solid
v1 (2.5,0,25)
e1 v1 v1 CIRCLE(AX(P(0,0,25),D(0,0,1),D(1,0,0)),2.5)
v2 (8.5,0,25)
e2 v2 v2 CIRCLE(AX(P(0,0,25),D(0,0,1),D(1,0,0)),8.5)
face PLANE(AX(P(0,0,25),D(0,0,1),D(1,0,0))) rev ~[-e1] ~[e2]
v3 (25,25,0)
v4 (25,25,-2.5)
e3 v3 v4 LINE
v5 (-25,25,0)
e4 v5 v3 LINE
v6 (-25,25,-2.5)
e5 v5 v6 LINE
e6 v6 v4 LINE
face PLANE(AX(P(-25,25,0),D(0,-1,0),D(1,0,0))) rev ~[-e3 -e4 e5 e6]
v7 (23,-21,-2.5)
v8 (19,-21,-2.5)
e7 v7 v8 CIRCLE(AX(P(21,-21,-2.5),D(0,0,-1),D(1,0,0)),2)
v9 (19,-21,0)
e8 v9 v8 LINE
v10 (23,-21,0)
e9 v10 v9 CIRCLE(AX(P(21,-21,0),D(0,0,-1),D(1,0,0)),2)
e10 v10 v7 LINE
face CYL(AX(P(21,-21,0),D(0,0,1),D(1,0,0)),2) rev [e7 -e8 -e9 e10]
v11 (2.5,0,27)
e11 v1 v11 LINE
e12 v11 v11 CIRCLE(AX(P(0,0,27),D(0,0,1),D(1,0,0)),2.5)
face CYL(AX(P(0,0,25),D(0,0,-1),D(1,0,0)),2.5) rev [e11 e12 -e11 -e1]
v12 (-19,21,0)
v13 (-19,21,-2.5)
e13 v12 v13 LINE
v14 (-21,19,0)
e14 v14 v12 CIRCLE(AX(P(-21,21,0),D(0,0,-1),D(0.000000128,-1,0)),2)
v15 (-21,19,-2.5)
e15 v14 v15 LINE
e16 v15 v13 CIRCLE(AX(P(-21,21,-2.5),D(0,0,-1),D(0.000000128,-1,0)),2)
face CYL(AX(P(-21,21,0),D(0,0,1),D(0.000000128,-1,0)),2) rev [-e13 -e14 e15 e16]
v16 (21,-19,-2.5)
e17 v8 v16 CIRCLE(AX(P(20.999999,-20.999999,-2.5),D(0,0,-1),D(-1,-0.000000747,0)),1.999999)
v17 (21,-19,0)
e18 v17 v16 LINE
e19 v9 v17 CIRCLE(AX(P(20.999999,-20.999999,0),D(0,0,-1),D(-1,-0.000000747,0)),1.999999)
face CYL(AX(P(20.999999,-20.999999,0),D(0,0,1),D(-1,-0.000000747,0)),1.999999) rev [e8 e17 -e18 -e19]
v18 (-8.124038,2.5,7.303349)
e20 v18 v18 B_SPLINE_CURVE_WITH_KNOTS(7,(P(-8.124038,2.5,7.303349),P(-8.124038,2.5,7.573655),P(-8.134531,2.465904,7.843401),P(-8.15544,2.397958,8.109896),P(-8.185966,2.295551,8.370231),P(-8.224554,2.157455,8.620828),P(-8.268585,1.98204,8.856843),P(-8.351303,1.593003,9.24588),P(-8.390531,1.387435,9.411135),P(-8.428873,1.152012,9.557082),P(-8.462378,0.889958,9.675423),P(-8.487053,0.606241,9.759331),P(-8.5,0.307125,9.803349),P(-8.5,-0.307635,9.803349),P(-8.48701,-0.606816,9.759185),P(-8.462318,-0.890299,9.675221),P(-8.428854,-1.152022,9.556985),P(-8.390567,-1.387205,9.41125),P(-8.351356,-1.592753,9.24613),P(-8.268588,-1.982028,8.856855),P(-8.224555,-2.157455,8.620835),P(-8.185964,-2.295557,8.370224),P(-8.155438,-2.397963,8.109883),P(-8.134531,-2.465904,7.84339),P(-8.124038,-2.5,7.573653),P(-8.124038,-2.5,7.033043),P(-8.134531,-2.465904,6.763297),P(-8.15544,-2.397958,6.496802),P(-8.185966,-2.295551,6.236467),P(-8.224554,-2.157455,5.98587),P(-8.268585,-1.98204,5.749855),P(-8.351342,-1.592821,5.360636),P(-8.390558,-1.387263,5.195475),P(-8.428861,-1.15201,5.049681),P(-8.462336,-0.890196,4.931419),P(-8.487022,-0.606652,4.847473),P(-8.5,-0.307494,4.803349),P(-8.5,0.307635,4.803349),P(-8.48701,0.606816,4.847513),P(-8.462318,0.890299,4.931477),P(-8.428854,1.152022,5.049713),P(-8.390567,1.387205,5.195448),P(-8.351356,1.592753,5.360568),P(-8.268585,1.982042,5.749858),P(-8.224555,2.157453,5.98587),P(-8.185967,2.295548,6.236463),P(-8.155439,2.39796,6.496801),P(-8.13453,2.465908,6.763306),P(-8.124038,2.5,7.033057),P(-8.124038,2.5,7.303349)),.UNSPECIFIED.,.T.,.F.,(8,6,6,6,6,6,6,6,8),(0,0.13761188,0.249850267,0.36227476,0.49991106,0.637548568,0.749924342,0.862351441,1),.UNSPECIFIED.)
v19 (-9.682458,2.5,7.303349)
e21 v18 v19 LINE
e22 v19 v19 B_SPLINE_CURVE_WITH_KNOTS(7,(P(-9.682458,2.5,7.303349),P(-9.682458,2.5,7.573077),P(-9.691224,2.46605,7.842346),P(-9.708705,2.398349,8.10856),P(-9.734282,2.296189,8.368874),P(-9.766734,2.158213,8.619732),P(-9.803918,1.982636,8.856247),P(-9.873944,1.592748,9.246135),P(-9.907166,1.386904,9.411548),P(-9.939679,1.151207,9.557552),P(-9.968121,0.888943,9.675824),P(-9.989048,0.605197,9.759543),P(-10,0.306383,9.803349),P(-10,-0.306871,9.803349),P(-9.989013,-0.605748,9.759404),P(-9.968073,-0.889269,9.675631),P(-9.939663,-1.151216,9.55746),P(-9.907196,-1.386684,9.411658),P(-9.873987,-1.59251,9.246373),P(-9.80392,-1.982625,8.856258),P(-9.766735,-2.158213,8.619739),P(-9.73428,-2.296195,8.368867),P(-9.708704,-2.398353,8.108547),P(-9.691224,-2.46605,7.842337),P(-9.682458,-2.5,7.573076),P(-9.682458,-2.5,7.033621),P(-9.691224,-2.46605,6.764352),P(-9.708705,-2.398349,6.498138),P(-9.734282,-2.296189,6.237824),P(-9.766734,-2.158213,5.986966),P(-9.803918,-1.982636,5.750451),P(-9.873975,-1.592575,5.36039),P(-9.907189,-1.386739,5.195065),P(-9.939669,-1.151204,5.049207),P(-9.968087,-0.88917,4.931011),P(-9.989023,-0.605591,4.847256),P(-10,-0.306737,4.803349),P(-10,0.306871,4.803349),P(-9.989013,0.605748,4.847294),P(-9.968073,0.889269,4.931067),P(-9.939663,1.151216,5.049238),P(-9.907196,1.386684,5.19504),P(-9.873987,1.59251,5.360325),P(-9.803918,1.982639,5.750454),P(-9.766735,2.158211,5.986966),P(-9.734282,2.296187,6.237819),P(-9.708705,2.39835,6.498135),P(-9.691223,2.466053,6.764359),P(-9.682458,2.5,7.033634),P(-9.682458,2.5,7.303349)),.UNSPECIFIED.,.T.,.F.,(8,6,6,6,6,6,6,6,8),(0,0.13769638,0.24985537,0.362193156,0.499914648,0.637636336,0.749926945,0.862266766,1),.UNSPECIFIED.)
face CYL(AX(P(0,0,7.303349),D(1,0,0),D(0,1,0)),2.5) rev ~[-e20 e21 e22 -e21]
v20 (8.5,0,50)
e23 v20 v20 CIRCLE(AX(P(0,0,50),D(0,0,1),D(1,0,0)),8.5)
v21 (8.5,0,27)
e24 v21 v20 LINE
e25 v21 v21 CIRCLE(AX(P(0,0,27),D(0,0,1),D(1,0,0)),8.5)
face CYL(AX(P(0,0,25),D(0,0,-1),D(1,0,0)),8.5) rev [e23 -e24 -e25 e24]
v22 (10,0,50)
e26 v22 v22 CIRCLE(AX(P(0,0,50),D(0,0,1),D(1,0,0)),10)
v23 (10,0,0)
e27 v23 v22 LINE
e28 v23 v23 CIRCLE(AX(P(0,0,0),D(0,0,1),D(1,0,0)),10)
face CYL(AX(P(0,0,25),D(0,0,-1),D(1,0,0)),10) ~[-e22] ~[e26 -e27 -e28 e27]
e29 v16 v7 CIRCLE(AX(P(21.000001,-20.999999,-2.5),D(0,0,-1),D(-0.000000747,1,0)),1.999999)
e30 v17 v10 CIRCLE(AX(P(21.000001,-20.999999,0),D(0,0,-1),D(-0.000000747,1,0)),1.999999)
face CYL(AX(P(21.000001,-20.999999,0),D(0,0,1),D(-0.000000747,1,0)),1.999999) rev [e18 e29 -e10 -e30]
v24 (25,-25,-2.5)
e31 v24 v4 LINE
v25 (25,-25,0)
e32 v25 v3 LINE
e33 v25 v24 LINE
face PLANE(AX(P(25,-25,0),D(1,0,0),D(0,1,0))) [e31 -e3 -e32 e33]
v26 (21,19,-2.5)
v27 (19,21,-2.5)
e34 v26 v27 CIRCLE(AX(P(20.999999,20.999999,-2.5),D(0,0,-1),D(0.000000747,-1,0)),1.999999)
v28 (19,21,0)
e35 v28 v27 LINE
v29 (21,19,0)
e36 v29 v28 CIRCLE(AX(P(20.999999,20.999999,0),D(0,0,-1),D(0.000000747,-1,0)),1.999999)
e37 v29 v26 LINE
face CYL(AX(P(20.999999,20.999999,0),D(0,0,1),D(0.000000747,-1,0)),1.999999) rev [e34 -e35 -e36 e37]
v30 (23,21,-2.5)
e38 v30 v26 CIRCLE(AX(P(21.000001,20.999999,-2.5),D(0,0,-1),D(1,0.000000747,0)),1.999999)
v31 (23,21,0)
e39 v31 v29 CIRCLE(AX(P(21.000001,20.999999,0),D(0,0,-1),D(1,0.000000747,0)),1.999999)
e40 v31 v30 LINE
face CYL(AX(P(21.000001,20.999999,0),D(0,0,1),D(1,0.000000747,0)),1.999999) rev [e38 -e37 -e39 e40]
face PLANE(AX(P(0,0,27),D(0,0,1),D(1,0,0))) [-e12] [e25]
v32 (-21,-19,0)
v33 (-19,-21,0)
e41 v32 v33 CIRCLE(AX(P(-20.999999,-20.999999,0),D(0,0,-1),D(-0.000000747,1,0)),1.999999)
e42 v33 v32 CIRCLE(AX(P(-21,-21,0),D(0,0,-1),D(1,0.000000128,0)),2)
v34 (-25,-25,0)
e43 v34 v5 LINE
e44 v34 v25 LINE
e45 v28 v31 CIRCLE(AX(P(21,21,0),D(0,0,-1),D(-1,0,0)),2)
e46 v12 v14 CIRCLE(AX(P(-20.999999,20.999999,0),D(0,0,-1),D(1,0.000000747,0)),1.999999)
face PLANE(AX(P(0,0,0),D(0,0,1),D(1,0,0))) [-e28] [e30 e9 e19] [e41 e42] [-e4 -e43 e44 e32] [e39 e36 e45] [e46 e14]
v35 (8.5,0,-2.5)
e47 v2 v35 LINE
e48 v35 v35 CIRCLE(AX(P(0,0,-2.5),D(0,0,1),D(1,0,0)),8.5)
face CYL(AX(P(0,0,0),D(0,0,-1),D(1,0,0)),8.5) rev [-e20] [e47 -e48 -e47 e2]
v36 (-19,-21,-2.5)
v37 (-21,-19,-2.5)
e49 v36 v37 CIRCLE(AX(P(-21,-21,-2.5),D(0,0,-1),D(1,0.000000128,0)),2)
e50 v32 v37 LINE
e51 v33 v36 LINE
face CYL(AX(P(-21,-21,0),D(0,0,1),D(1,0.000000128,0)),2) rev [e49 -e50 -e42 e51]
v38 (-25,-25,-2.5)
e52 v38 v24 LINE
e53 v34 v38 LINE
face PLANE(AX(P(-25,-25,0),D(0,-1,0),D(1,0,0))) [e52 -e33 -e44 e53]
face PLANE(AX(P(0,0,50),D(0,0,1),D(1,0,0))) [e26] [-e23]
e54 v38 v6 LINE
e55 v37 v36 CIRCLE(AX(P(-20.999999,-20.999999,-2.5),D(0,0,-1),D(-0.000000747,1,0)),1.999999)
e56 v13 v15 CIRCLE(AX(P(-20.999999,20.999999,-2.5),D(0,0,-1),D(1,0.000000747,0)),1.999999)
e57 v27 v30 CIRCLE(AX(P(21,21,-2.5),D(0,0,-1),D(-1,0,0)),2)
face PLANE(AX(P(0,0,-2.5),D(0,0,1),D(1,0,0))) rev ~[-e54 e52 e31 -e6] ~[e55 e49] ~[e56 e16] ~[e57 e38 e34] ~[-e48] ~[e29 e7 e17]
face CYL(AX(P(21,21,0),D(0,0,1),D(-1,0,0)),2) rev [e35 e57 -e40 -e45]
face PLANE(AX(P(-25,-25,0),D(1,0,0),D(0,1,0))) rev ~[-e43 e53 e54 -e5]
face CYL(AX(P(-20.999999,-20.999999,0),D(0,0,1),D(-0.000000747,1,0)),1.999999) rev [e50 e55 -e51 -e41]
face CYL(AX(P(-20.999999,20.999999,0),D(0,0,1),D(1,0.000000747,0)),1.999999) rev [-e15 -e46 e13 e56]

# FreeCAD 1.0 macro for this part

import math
import FreeCAD as App
import Part
import Sketcher

V = App.Vector
Q = App.Units.Quantity


def add_polygon(sketch, points):
    """Adds a closed chain of lines whose ends are joined by coincident constraints."""
    first, n = sketch.GeometryCount, len(points)
    for a, b in zip(points, points[1:] + points[:1]):
        sketch.addGeometry(Part.LineSegment(App.Vector(*a, 0), App.Vector(*b, 0)), False)
    for i in range(n):
        sketch.addConstraint(Sketcher.Constraint("Coincident", first + i, 2, first + (i + 1) % n, 1))

doc = App.newDocument("Part")
body = doc.addObject("PartDesign::Body", "Body")
body.AllowCompound = True

sketch1 = body.newObject("Sketcher::SketchObject", "Sketch")
sketch1.AttachmentSupport = (doc.getObject("XY_Plane"), [""])
sketch1.MapMode = "FlatFace"
add_polygon(sketch1, [(-25, 25), (-25, -25), (25, -25), (25, 25)])
sketch1.addGeometry(Part.ArcOfCircle(Part.Circle(V(-21, -21, 0), V(0, 0, 1), 2), math.radians(90), math.radians(360)), False)
sketch1.addGeometry(Part.ArcOfCircle(Part.Circle(V(-21, -21, 0), V(0, 0, 1), 2), math.radians(0), math.radians(90)), False)
sketch1.addGeometry(Part.ArcOfCircle(Part.Circle(V(21, -21, 0), V(0, 0, 1), 2), math.radians(180), math.radians(360)), False)
sketch1.addGeometry(Part.ArcOfCircle(Part.Circle(V(21, -21, 0), V(0, 0, 1), 2), math.radians(90), math.radians(180)), False)
sketch1.addGeometry(Part.ArcOfCircle(Part.Circle(V(21, -21, 0), V(0, 0, 1), 2), math.radians(0), math.radians(90)), False)
sketch1.addGeometry(Part.ArcOfCircle(Part.Circle(V(-21, 21, 0), V(0, 0, 1), 2), math.radians(0), math.radians(270)), False)
sketch1.addGeometry(Part.ArcOfCircle(Part.Circle(V(-21, 21, 0), V(0, 0, 1), 2), math.radians(-90), math.radians(0)), False)
sketch1.addGeometry(Part.Circle(V(0, 0, 0), V(0, 0, 1), 8.5), False)
sketch1.addGeometry(Part.ArcOfCircle(Part.Circle(V(21, 21, 0), V(0, 0, 1), 2), math.radians(-90), math.radians(0)), False)
sketch1.addGeometry(Part.ArcOfCircle(Part.Circle(V(21, 21, 0), V(0, 0, 1), 2), math.radians(180), math.radians(270)), False)
sketch1.addGeometry(Part.ArcOfCircle(Part.Circle(V(21, 21, 0), V(0, 0, 1), 2), math.radians(0), math.radians(180)), False)
sketch1.addConstraint([
    Sketcher.Constraint("Tangent", 4, 1, 5, 2),
    Sketcher.Constraint("Coincident", 5, 1, 4, 2),
    Sketcher.Constraint("Tangent", 6, 1, 7, 2),
    Sketcher.Constraint("Tangent", 7, 1, 8, 2),
    Sketcher.Constraint("Tangent", 8, 1, 6, 2),
    Sketcher.Constraint("Tangent", 9, 1, 10, 2),
    Sketcher.Constraint("Coincident", 10, 1, 9, 2),
    Sketcher.Constraint("Tangent", 12, 1, 13, 2),
    Sketcher.Constraint("Tangent", 13, 1, 14, 2),
    Sketcher.Constraint("Tangent", 14, 1, 12, 2),
    Sketcher.Constraint("Vertical", 0),
    Sketcher.Constraint("Horizontal", 1),
    Sketcher.Constraint("Vertical", 2),
    Sketcher.Constraint("Horizontal", 3),
    Sketcher.Constraint("Coincident", 11, 3, -1, 1),
    Sketcher.Constraint("Equal", 5, 6),
    Sketcher.Constraint("Equal", 8, 9),
    Sketcher.Constraint("Equal", 10, 12),
    Sketcher.Constraint("Symmetric", 6, 3, 9, 3, -1, 1),
    Sketcher.Constraint("Symmetric", 4, 3, 12, 3, -1, 1),
    Sketcher.Constraint("Symmetric", 0, 2, 2, 2, -1, 1),
    Sketcher.Constraint("Symmetric", 4, 3, 6, 3, -2),
    Sketcher.Constraint("Horizontal", 8, 3, 5, 1),
    Sketcher.Constraint("Horizontal", 5, 1, 6, 1),
    Sketcher.Constraint("Horizontal", 6, 1, 8, 1),
    Sketcher.Constraint("Horizontal", 14, 3, 9, 1),
    Sketcher.Constraint("Horizontal", 9, 1, 13, 1),
    Sketcher.Constraint("Horizontal", 13, 1, 14, 1),
    Sketcher.Constraint("Vertical", 10, 3, 4, 1),
    Sketcher.Constraint("Vertical", 14, 3, 7, 1),
    Sketcher.Constraint("Vertical", 4, 1, 10, 1),
    Sketcher.Constraint("Vertical", 7, 1, 12, 1),
    Sketcher.Constraint("Equal", 3, 0),
    Sketcher.Constraint("Diameter", 11, Q("17 mm")),
    Sketcher.Constraint("Radius", 4, Q("2 mm")),
    Sketcher.Constraint("DistanceX", 1, 1, 1, 2, Q("50 mm")),
    Sketcher.Constraint("DistanceX", 4, 3, -1, 1, Q("21 mm")),
    Sketcher.Constraint("DistanceY", 4, 3, -1, 1, Q("21 mm")),
])
pad1 = body.newObject("PartDesign::Pad", "Pad")
pad1.Profile = sketch1
pad1.Length = 2.5
pad1.Reversed = True

sketch2 = body.newObject("Sketcher::SketchObject", "Sketch001")
sketch2.AttachmentSupport = (doc.getObject("XY_Plane"), [""])
sketch2.MapMode = "FlatFace"
sketch2.addGeometry([
    Part.Circle(V(0, 0, 0), V(0, 0, 1), 10),
    Part.Circle(V(0, 0, 0), V(0, 0, 1), 8),
], False)
sketch2.addConstraint([
    Sketcher.Constraint("Coincident", 0, 3, -1, 1),
    Sketcher.Constraint("Coincident", 1, 3, -1, 1),
    Sketcher.Constraint("Diameter", 0, Q("20 mm")),
    Sketcher.Constraint("Diameter", 1, Q("17 mm")),
])
pad2 = body.newObject("PartDesign::Pad", "Pad001")
pad2.Profile = sketch2
pad2.Length = 25

sketch3 = body.newObject("Sketcher::SketchObject", "Sketch002")
sketch3.AttachmentSupport = (doc.getObject("XY_Plane"), [""])
sketch3.MapMode = "FlatFace"
sketch3.AttachmentOffset = App.Placement(V(0, 0, 25), App.Rotation())
sketch3.addGeometry([
    Part.Circle(V(0, 0, 0), V(0, 0, 1), 8.5),
    Part.Circle(V(0, 0, 0), V(0, 0, 1), 2.5),
], False)
sketch3.addConstraint([
    Sketcher.Constraint("Coincident", 0, 3, -1, 1),
    Sketcher.Constraint("Coincident", 1, 3, -1, 1),
    Sketcher.Constraint("Diameter", 0, Q("17 mm")),
    Sketcher.Constraint("Diameter", 1, Q("5 mm")),
])
pad3 = body.newObject("PartDesign::Pad", "Pad002")
pad3.Profile = sketch3
pad3.Length = 2

sketch4 = body.newObject("Sketcher::SketchObject", "Sketch003")
sketch4.AttachmentSupport = (doc.getObject("XY_Plane"), [""])
sketch4.MapMode = "FlatFace"
sketch4.AttachmentOffset = App.Placement(V(0, 0, 25), App.Rotation())
sketch4.addGeometry([
    Part.Circle(V(0, 0, 0), V(0, 0, 1), 10),
    Part.Circle(V(0, 0, 0), V(0, 0, 1), 8),
], False)
sketch4.addConstraint([
    Sketcher.Constraint("Coincident", 0, 3, -1, 1),
    Sketcher.Constraint("Coincident", 1, 3, -1, 1),
    Sketcher.Constraint("Diameter", 0, Q("20 mm")),
    Sketcher.Constraint("Diameter", 1, Q("17 mm")),
])
pad4 = body.newObject("PartDesign::Pad", "Pad003")
pad4.Profile = sketch4
pad4.Length = 25

sketch5 = body.newObject("Sketcher::SketchObject", "Sketch004")
sketch5.AttachmentSupport = (doc.getObject("YZ_Plane"), [""])
sketch5.MapMode = "FlatFace"
sketch5.addGeometry(Part.Circle(V(0, 7.3, 0), V(0, 0, 1), 2.5), False)
sketch5.addConstraint([
    Sketcher.Constraint("PointOnObject", 0, 3, -2),
    Sketcher.Constraint("Diameter", 0, Q("5 mm")),
    Sketcher.Constraint("DistanceY", -1, 1, 0, 3, Q("7.303349 mm")),
])
pocket1 = body.newObject("PartDesign::Pocket", "Pocket")
pocket1.Profile = sketch5
pocket1.Length = 25

doc.recompute()
